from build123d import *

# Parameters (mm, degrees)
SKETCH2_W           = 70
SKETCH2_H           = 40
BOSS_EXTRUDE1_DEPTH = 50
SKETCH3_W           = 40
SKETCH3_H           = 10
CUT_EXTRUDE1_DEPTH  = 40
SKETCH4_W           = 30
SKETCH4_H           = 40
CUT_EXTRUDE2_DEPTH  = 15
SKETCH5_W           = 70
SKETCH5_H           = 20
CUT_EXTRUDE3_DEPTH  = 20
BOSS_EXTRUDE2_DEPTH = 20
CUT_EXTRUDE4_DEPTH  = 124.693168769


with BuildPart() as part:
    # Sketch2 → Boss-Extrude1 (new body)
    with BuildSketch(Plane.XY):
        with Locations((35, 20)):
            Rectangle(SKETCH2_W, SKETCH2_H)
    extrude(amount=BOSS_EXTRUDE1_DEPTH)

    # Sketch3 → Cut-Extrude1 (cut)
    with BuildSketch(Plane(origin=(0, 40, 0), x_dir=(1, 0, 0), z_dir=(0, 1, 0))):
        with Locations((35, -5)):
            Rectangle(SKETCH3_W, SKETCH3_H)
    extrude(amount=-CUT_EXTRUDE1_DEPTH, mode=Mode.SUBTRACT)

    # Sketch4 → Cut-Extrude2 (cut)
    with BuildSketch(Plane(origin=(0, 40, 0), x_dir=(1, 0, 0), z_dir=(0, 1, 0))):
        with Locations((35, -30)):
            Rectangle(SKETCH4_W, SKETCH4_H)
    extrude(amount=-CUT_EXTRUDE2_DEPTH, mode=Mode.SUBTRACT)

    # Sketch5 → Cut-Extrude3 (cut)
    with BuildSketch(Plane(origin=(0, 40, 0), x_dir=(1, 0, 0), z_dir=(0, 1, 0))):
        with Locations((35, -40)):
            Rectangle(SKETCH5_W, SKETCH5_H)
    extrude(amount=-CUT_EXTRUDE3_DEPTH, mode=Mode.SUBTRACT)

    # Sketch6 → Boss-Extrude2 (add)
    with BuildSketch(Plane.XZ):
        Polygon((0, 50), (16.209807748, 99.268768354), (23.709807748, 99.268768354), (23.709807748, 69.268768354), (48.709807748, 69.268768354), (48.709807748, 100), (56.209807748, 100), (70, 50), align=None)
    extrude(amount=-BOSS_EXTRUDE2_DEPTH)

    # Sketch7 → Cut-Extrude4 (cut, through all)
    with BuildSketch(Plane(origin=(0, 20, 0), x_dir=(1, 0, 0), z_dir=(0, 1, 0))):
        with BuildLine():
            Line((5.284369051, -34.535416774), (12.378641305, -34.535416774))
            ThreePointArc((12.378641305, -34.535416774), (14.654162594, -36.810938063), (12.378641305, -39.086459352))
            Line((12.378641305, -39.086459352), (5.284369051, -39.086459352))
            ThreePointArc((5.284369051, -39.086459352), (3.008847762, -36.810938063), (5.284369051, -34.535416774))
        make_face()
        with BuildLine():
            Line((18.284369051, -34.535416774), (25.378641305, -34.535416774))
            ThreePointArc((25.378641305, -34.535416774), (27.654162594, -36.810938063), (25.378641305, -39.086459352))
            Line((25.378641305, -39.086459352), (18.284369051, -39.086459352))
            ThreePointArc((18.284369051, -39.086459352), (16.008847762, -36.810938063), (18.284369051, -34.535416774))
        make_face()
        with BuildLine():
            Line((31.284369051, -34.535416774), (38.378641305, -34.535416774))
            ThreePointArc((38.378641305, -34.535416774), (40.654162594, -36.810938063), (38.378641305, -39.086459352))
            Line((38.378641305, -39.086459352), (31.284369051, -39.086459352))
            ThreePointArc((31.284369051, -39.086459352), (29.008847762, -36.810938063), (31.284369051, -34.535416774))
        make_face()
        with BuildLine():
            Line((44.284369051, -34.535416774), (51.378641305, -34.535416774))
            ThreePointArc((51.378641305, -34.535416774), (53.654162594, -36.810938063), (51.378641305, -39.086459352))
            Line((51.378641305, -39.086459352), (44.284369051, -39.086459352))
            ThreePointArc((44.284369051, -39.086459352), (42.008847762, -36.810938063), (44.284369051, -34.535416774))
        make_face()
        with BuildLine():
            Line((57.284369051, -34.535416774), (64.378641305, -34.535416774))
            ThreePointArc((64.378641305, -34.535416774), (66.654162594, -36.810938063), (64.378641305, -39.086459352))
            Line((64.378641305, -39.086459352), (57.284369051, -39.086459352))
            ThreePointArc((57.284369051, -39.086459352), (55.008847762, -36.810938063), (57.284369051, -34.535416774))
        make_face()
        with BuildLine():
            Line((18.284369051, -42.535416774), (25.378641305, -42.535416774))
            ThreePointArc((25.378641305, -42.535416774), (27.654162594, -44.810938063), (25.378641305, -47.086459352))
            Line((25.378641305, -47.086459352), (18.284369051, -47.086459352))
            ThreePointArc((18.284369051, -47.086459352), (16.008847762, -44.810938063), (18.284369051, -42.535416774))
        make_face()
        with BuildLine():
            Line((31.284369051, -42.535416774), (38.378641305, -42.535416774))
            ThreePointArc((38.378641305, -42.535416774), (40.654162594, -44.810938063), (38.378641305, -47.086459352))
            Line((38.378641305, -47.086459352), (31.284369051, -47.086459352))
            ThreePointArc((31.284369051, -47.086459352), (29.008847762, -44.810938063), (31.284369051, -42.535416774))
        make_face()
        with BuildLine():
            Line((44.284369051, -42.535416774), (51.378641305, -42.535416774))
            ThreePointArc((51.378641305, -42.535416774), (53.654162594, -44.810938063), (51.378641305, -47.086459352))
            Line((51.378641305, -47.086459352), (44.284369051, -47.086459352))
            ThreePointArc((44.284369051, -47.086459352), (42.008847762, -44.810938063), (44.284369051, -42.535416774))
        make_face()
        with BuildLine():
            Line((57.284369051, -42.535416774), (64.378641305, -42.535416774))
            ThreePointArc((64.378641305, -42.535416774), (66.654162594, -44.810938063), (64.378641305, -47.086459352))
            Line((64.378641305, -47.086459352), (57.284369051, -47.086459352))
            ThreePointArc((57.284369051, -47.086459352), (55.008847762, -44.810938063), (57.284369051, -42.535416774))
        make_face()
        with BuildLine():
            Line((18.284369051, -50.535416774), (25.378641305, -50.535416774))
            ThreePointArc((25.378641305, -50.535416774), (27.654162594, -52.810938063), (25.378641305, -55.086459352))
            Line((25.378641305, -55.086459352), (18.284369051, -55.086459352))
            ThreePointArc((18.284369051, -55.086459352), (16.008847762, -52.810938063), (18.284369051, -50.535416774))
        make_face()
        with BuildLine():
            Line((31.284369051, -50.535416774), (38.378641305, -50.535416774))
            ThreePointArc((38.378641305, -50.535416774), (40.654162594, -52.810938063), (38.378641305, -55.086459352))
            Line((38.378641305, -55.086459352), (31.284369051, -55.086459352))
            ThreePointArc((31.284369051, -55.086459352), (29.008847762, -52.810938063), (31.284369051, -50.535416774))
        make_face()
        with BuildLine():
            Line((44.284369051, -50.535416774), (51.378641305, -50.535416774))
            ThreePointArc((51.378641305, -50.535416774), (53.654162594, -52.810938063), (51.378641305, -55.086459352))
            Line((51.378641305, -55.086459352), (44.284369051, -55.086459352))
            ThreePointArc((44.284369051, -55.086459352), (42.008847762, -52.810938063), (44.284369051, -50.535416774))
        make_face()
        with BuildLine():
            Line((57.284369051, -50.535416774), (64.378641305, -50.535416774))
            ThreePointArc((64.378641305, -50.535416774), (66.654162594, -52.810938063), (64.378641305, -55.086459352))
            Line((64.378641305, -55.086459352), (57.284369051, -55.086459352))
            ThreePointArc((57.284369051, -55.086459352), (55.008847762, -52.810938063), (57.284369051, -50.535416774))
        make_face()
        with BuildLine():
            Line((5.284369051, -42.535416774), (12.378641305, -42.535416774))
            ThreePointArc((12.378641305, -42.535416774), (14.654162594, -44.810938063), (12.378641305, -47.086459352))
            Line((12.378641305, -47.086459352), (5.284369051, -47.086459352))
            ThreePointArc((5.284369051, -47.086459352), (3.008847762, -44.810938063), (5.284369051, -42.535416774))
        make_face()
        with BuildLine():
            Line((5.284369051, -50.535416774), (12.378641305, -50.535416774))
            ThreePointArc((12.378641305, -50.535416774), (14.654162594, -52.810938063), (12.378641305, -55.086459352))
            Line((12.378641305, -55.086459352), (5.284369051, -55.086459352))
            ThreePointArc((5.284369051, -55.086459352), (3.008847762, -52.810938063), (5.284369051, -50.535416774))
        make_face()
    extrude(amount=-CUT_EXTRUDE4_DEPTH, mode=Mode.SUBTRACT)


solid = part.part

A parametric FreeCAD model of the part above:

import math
import FreeCAD as App
import Part
import Sketcher
Q = App.Units.Quantity


def add_polygon(sketch, points):
    """Adds a closed chain of lines whose ends are joined by coincident constraints."""
    first, n = sketch.GeometryCount, len(points)
    for a, b in zip(points, points[1:] + points[:1]):
        sketch.addGeometry(Part.LineSegment(App.Vector(*a, 0), App.Vector(*b, 0)), False)
    for i in range(n):
        sketch.addConstraint(Sketcher.Constraint("Coincident", first + i, 2, first + (i + 1) % n, 1))

doc = App.newDocument("Part")
body = doc.addObject("PartDesign::Body", "Body")

# Sketch on XY plane
sketch1 = body.newObject("Sketcher::SketchObject", "Sketch")
sketch1.AttachmentSupport = (doc.getObject("XY_Plane"), [""])
sketch1.MapMode = "FlatFace"
add_polygon(sketch1, [(0, 40), (0, 0), (70, 0), (70, 40)])  # lines 0-3
sketch1.addConstraint([
    Sketcher.Constraint("Vertical", 0),
    Sketcher.Constraint("Horizontal", 1),
    Sketcher.Constraint("Vertical", 2),
    Sketcher.Constraint("Horizontal", 3),
    Sketcher.Constraint("Coincident", 0, 2, -1, 1),
    Sketcher.Constraint("DistanceX", 1, 1, 1, 2, Q("70 mm")),
    Sketcher.Constraint("DistanceY", 0, 2, 0, 1, Q("40 mm")),
])
pad1 = body.newObject("PartDesign::Pad", "Pad")
pad1.Profile = sketch1
pad1.Length = 50

# Sketch on XZ plane
sketch2 = body.newObject("Sketcher::SketchObject", "Sketch001")
sketch2.AttachmentSupport = (doc.getObject("XZ_Plane"), [""])
sketch2.MapMode = "FlatFace"
sketch2.AttachmentOffset = App.Placement(App.Vector(0, 0, -40), App.Rotation())
add_polygon(sketch2, [(15, 0), (15, 10), (55, 10), (55, 0)])  # lines 0-3
sketch2.addConstraint([
    Sketcher.Constraint("Vertical", 0),
    Sketcher.Constraint("Horizontal", 1),
    Sketcher.Constraint("Vertical", 2),
    Sketcher.Constraint("Horizontal", 3),
    Sketcher.Constraint("PointOnObject", 2, 2, -1),
    Sketcher.Constraint("DistanceX", 1, 1, 1, 2, Q("40 mm")),
    Sketcher.Constraint("DistanceY", 0, 1, 0, 2, Q("10 mm")),
    Sketcher.Constraint("DistanceX", -1, 1, 0, 2, Q("15 mm")),
])
pocket1 = body.newObject("PartDesign::Pocket", "Pocket")
pocket1.Profile = sketch2
pocket1.Length = 40
pocket1.Reversed = True

# Sketch on XZ plane
sketch3 = body.newObject("Sketcher::SketchObject", "Sketch002")
sketch3.AttachmentSupport = (doc.getObject("XZ_Plane"), [""])
sketch3.MapMode = "FlatFace"
sketch3.AttachmentOffset = App.Placement(App.Vector(0, 0, -40), App.Rotation())
add_polygon(sketch3, [(20, 10), (20, 50), (50, 50), (50, 10)])  # lines 0-3
sketch3.addConstraint([
    Sketcher.Constraint("Vertical", 0),
    Sketcher.Constraint("Horizontal", 1),
    Sketcher.Constraint("Vertical", 2),
    Sketcher.Constraint("Horizontal", 3),
    Sketcher.Constraint("DistanceX", 1, 1, 1, 2, Q("30 mm")),
    Sketcher.Constraint("DistanceY", 0, 1, 0, 2, Q("40 mm")),
    Sketcher.Constraint("DistanceX", -1, 1, 0, 2, Q("20 mm")),
    Sketcher.Constraint("DistanceY", -1, 1, 0, 2, Q("50 mm")),
])
pocket2 = body.newObject("PartDesign::Pocket", "Pocket001")
pocket2.Profile = sketch3
pocket2.Length = 15
pocket2.Reversed = True

# Sketch on XZ plane
sketch4 = body.newObject("Sketcher::SketchObject", "Sketch003")
sketch4.AttachmentSupport = (doc.getObject("XZ_Plane"), [""])
sketch4.MapMode = "FlatFace"
sketch4.AttachmentOffset = App.Placement(App.Vector(0, 0, -40), App.Rotation())
add_polygon(sketch4, [(0, 30), (0, 50), (70, 50), (70, 30)])  # lines 0-3
sketch4.addConstraint([
    Sketcher.Constraint("Vertical", 0),
    Sketcher.Constraint("Horizontal", 1),
    Sketcher.Constraint("Vertical", 2),
    Sketcher.Constraint("Horizontal", 3),
    Sketcher.Constraint("PointOnObject", 0, 2, -2),
    Sketcher.Constraint("DistanceX", 1, 1, 1, 2, Q("70 mm")),
    Sketcher.Constraint("DistanceY", 0, 1, 0, 2, Q("20 mm")),
    Sketcher.Constraint("DistanceY", -1, 1, 0, 2, Q("50 mm")),
])
pocket3 = body.newObject("PartDesign::Pocket", "Pocket002")
pocket3.Profile = sketch4
pocket3.Length = 20
pocket3.Reversed = True

# Sketch on XZ plane
sketch5 = body.newObject("Sketcher::SketchObject", "Sketch004")
sketch5.AttachmentSupport = (doc.getObject("XZ_Plane"), [""])
sketch5.MapMode = "FlatFace"
add_polygon(sketch5, [(16.209808, 99.268768), (0, 50), (70, 50), (56.209808, 100), (48.709808, 100), (48.709808, 69.268768), (23.709808, 69.268768), (23.709808, 99.268768)])  # lines 0-7
sketch5.addConstraint([
    Sketcher.Constraint("Horizontal", 1),
    Sketcher.Constraint("Horizontal", 3),
    Sketcher.Constraint("Vertical", 4),
    Sketcher.Constraint("Horizontal", 5),
    Sketcher.Constraint("Vertical", 6),
    Sketcher.Constraint("Horizontal", 7),
    Sketcher.Constraint("PointOnObject", 0, 2, -2),
    Sketcher.Constraint("Equal", 3, 7),
    Sketcher.Constraint("Equal", 0, 2),
    Sketcher.Constraint("DistanceX", 1, 1, 1, 2, Q("70 mm")),
    Sketcher.Constraint("DistanceX", 5, 2, 5, 1, Q("25 mm")),
    Sketcher.Constraint("DistanceY", 6, 1, 6, 2, Q("30 mm")),
    Sketcher.Constraint("DistanceX", 3, 2, 3, 1, Q("7.5 mm")),
    Sketcher.Constraint("DistanceY", -1, 1, 0, 2, Q("50 mm")),
    Sketcher.Constraint("DistanceY", -1, 1, 2, 2, Q("100 mm")),
    Sketcher.Constraint("DistanceY", 4, 2, 4, 1, Q("30.731232 mm")),
])
pad2 = body.newObject("PartDesign::Pad", "Pad001")
pad2.Profile = sketch5
pad2.Length = 20
pad2.Reversed = True

# Sketch on XZ plane
sketch6 = body.newObject("Sketcher::SketchObject", "Sketch005")
sketch6.AttachmentSupport = (doc.getObject("XZ_Plane"), [""])
sketch6.MapMode = "FlatFace"
sketch6.AttachmentOffset = App.Placement(App.Vector(0, 0, -20), App.Rotation())
sketch6.addGeometry([
    Part.LineSegment(App.Vector(12.378641, 34.535417, 0), App.Vector(5.284369, 34.535417, 0)),  # 0
    Part.ArcOfCircle(Part.Circle(App.Vector(5.284369, 36.810938, 0), App.Vector(0, 0, 1), 2.275521), math.radians(90), math.radians(270)),  # 1
    Part.LineSegment(App.Vector(5.284369, 39.086459, 0), App.Vector(12.378641, 39.086459, 0)),  # 2
    Part.ArcOfCircle(Part.Circle(App.Vector(12.378641, 36.810938, 0), App.Vector(0, 0, 1), 2.275521), math.radians(-90), math.radians(90)),  # 3
    Part.LineSegment(App.Vector(25.378641, 34.535417, 0), App.Vector(18.284369, 34.535417, 0)),  # 4
    Part.ArcOfCircle(Part.Circle(App.Vector(18.284369, 36.810938, 0), App.Vector(0, 0, 1), 2.275521), math.radians(90), math.radians(270)),  # 5
    Part.LineSegment(App.Vector(18.284369, 39.086459, 0), App.Vector(25.378641, 39.086459, 0)),  # 6
    Part.ArcOfCircle(Part.Circle(App.Vector(25.378641, 36.810938, 0), App.Vector(0, 0, 1), 2.275521), math.radians(-90), math.radians(90)),  # 7
    Part.LineSegment(App.Vector(38.378641, 34.535417, 0), App.Vector(31.284369, 34.535417, 0)),  # 8
    Part.ArcOfCircle(Part.Circle(App.Vector(31.284369, 36.810938, 0), App.Vector(0, 0, 1), 2.275521), math.radians(90), math.radians(270)),  # 9
    Part.LineSegment(App.Vector(31.284369, 39.086459, 0), App.Vector(38.378641, 39.086459, 0)),  # 10
    Part.ArcOfCircle(Part.Circle(App.Vector(38.378641, 36.810938, 0), App.Vector(0, 0, 1), 2.275521), math.radians(-90), math.radians(90)),  # 11
    Part.LineSegment(App.Vector(51.378641, 34.535417, 0), App.Vector(44.284369, 34.535417, 0)),  # 12
    Part.ArcOfCircle(Part.Circle(App.Vector(44.284369, 36.810938, 0), App.Vector(0, 0, 1), 2.275521), math.radians(90), math.radians(270)),  # 13
    Part.LineSegment(App.Vector(44.284369, 39.086459, 0), App.Vector(51.378641, 39.086459, 0)),  # 14
    Part.ArcOfCircle(Part.Circle(App.Vector(51.378641, 36.810938, 0), App.Vector(0, 0, 1), 2.275521), math.radians(-90), math.radians(90)),  # 15
    Part.LineSegment(App.Vector(64.378641, 34.535417, 0), App.Vector(57.284369, 34.535417, 0)),  # 16
    Part.ArcOfCircle(Part.Circle(App.Vector(57.284369, 36.810938, 0), App.Vector(0, 0, 1), 2.275521), math.radians(90), math.radians(270)),  # 17
    Part.LineSegment(App.Vector(57.284369, 39.086459, 0), App.Vector(64.378641, 39.086459, 0)),  # 18
    Part.ArcOfCircle(Part.Circle(App.Vector(64.378641, 36.810938, 0), App.Vector(0, 0, 1), 2.275521), math.radians(-90), math.radians(90)),  # 19
    Part.LineSegment(App.Vector(25.378641, 42.535417, 0), App.Vector(18.284369, 42.535417, 0)),  # 20
    Part.ArcOfCircle(Part.Circle(App.Vector(18.284369, 44.810938, 0), App.Vector(0, 0, 1), 2.275521), math.radians(90), math.radians(270)),  # 21
    Part.LineSegment(App.Vector(18.284369, 47.086459, 0), App.Vector(25.378641, 47.086459, 0)),  # 22
    Part.ArcOfCircle(Part.Circle(App.Vector(25.378641, 44.810938, 0), App.Vector(0, 0, 1), 2.275521), math.radians(-90), math.radians(90)),  # 23
    Part.LineSegment(App.Vector(38.378641, 42.535417, 0), App.Vector(31.284369, 42.535417, 0)),  # 24
    Part.ArcOfCircle(Part.Circle(App.Vector(31.284369, 44.810938, 0), App.Vector(0, 0, 1), 2.275521), math.radians(90), math.radians(270)),  # 25
    Part.LineSegment(App.Vector(31.284369, 47.086459, 0), App.Vector(38.378641, 47.086459, 0)),  # 26
    Part.ArcOfCircle(Part.Circle(App.Vector(38.378641, 44.810938, 0), App.Vector(0, 0, 1), 2.275521), math.radians(-90), math.radians(90)),  # 27
    Part.LineSegment(App.Vector(51.378641, 42.535417, 0), App.Vector(44.284369, 42.535417, 0)),  # 28
    Part.ArcOfCircle(Part.Circle(App.Vector(44.284369, 44.810938, 0), App.Vector(0, 0, 1), 2.275521), math.radians(90), math.radians(270)),  # 29
    Part.LineSegment(App.Vector(44.284369, 47.086459, 0), App.Vector(51.378641, 47.086459, 0)),  # 30
    Part.ArcOfCircle(Part.Circle(App.Vector(51.378641, 44.810938, 0), App.Vector(0, 0, 1), 2.275521), math.radians(-90), math.radians(90)),  # 31
    Part.LineSegment(App.Vector(64.378641, 42.535417, 0), App.Vector(57.284369, 42.535417, 0)),  # 32
    Part.ArcOfCircle(Part.Circle(App.Vector(57.284369, 44.810938, 0), App.Vector(0, 0, 1), 2.275521), math.radians(90), math.radians(270)),  # 33
    Part.LineSegment(App.Vector(57.284369, 47.086459, 0), App.Vector(64.378641, 47.086459, 0)),  # 34
    Part.ArcOfCircle(Part.Circle(App.Vector(64.378641, 44.810938, 0), App.Vector(0, 0, 1), 2.275521), math.radians(-90), math.radians(90)),  # 35
    Part.LineSegment(App.Vector(25.378641, 50.535417, 0), App.Vector(18.284369, 50.535417, 0)),  # 36
    Part.ArcOfCircle(Part.Circle(App.Vector(18.284369, 52.810938, 0), App.Vector(0, 0, 1), 2.275521), math.radians(90), math.radians(270)),  # 37
    Part.LineSegment(App.Vector(18.284369, 55.086459, 0), App.Vector(25.378641, 55.086459, 0)),  # 38
    Part.ArcOfCircle(Part.Circle(App.Vector(25.378641, 52.810938, 0), App.Vector(0, 0, 1), 2.275521), math.radians(-90), math.radians(90)),  # 39
    Part.LineSegment(App.Vector(38.378641, 50.535417, 0), App.Vector(31.284369, 50.535417, 0)),  # 40
    Part.ArcOfCircle(Part.Circle(App.Vector(31.284369, 52.810938, 0), App.Vector(0, 0, 1), 2.275521), math.radians(90), math.radians(270)),  # 41
    Part.LineSegment(App.Vector(31.284369, 55.086459, 0), App.Vector(38.378641, 55.086459, 0)),  # 42
    Part.ArcOfCircle(Part.Circle(App.Vector(38.378641, 52.810938, 0), App.Vector(0, 0, 1), 2.275521), math.radians(-90), math.radians(90)),  # 43
    Part.LineSegment(App.Vector(51.378641, 50.535417, 0), App.Vector(44.284369, 50.535417, 0)),  # 44
    Part.ArcOfCircle(Part.Circle(App.Vector(44.284369, 52.810938, 0), App.Vector(0, 0, 1), 2.275521), math.radians(90), math.radians(270)),  # 45
    Part.LineSegment(App.Vector(44.284369, 55.086459, 0), App.Vector(51.378641, 55.086459, 0)),  # 46
    Part.ArcOfCircle(Part.Circle(App.Vector(51.378641, 52.810938, 0), App.Vector(0, 0, 1), 2.275521), math.radians(-90), math.radians(90)),  # 47
    Part.LineSegment(App.Vector(64.378641, 50.535417, 0), App.Vector(57.284369, 50.535417, 0)),  # 48
    Part.ArcOfCircle(Part.Circle(App.Vector(57.284369, 52.810938, 0), App.Vector(0, 0, 1), 2.275521), math.radians(90), math.radians(270)),  # 49
    Part.LineSegment(App.Vector(57.284369, 55.086459, 0), App.Vector(64.378641, 55.086459, 0)),  # 50
    Part.ArcOfCircle(Part.Circle(App.Vector(64.378641, 52.810938, 0), App.Vector(0, 0, 1), 2.275521), math.radians(-90), math.radians(90)),  # 51
    Part.LineSegment(App.Vector(12.378641, 42.535417, 0), App.Vector(5.284369, 42.535417, 0)),  # 52
    Part.ArcOfCircle(Part.Circle(App.Vector(5.284369, 44.810938, 0), App.Vector(0, 0, 1), 2.275521), math.radians(90), math.radians(270)),  # 53
    Part.LineSegment(App.Vector(5.284369, 47.086459, 0), App.Vector(12.378641, 47.086459, 0)),  # 54
    Part.ArcOfCircle(Part.Circle(App.Vector(12.378641, 44.810938, 0), App.Vector(0, 0, 1), 2.275521), math.radians(-90), math.radians(90)),  # 55
    Part.LineSegment(App.Vector(12.378641, 50.535417, 0), App.Vector(5.284369, 50.535417, 0)),  # 56
    Part.ArcOfCircle(Part.Circle(App.Vector(5.284369, 52.810938, 0), App.Vector(0, 0, 1), 2.275521), math.radians(90), math.radians(270)),  # 57
    Part.LineSegment(App.Vector(5.284369, 55.086459, 0), App.Vector(12.378641, 55.086459, 0)),  # 58
    Part.ArcOfCircle(Part.Circle(App.Vector(12.378641, 52.810938, 0), App.Vector(0, 0, 1), 2.275521), math.radians(-90), math.radians(90)),  # 59
], False)
sketch6.addConstraint([
    Sketcher.Constraint("Tangent", 0, 2, 1, 2),
    Sketcher.Constraint("Tangent", 1, 1, 2, 1),
    Sketcher.Constraint("Tangent", 2, 2, 3, 2),
    Sketcher.Constraint("Tangent", 3, 1, 0, 1),
    Sketcher.Constraint("Tangent", 4, 2, 5, 2),
    Sketcher.Constraint("Tangent", 5, 1, 6, 1),
    Sketcher.Constraint("Tangent", 6, 2, 7, 2),
    Sketcher.Constraint("Tangent", 7, 1, 4, 1),
    Sketcher.Constraint("Tangent", 8, 2, 9, 2),
    Sketcher.Constraint("Tangent", 9, 1, 10, 1),
    Sketcher.Constraint("Tangent", 10, 2, 11, 2),
    Sketcher.Constraint("Tangent", 11, 1, 8, 1),
    Sketcher.Constraint("Tangent", 12, 2, 13, 2),
    Sketcher.Constraint("Tangent", 13, 1, 14, 1),
    Sketcher.Constraint("Tangent", 14, 2, 15, 2),
    Sketcher.Constraint("Tangent", 15, 1, 12, 1),
    Sketcher.Constraint("Tangent", 16, 2, 17, 2),
    Sketcher.Constraint("Tangent", 17, 1, 18, 1),
    Sketcher.Constraint("Tangent", 18, 2, 19, 2),
    Sketcher.Constraint("Tangent", 19, 1, 16, 1),
    Sketcher.Constraint("Tangent", 20, 2, 21, 2),
    Sketcher.Constraint("Tangent", 21, 1, 22, 1),
    Sketcher.Constraint("Tangent", 22, 2, 23, 2),
    Sketcher.Constraint("Tangent", 23, 1, 20, 1),
    Sketcher.Constraint("Tangent", 24, 2, 25, 2),
    Sketcher.Constraint("Tangent", 25, 1, 26, 1),
    Sketcher.Constraint("Tangent", 26, 2, 27, 2),
    Sketcher.Constraint("Tangent", 27, 1, 24, 1),
    Sketcher.Constraint("Tangent", 28, 2, 29, 2),
    Sketcher.Constraint("Tangent", 29, 1, 30, 1),
    Sketcher.Constraint("Tangent", 30, 2, 31, 2),
    Sketcher.Constraint("Tangent", 31, 1, 28, 1),
    Sketcher.Constraint("Tangent", 32, 2, 33, 2),
    Sketcher.Constraint("Tangent", 33, 1, 34, 1),
    Sketcher.Constraint("Tangent", 34, 2, 35, 2),
    Sketcher.Constraint("Tangent", 35, 1, 32, 1),
    Sketcher.Constraint("Tangent", 36, 2, 37, 2),
    Sketcher.Constraint("Tangent", 37, 1, 38, 1),
    Sketcher.Constraint("Tangent", 38, 2, 39, 2),
    Sketcher.Constraint("Tangent", 39, 1, 36, 1),
    Sketcher.Constraint("Tangent", 40, 2, 41, 2),
    Sketcher.Constraint("Tangent", 41, 1, 42, 1),
    Sketcher.Constraint("Tangent", 42, 2, 43, 2),
    Sketcher.Constraint("Tangent", 43, 1, 40, 1),
    Sketcher.Constraint("Tangent", 44, 2, 45, 2),
    Sketcher.Constraint("Tangent", 45, 1, 46, 1),
    Sketcher.Constraint("Tangent", 46, 2, 47, 2),
    Sketcher.Constraint("Tangent", 47, 1, 44, 1),
    Sketcher.Constraint("Tangent", 48, 2, 49, 2),
    Sketcher.Constraint("Tangent", 49, 1, 50, 1),
    Sketcher.Constraint("Tangent", 50, 2, 51, 2),
    Sketcher.Constraint("Tangent", 51, 1, 48, 1),
    Sketcher.Constraint("Tangent", 52, 2, 53, 2),
    Sketcher.Constraint("Tangent", 53, 1, 54, 1),
    Sketcher.Constraint("Tangent", 54, 2, 55, 2),
    Sketcher.Constraint("Tangent", 55, 1, 52, 1),
    Sketcher.Constraint("Tangent", 56, 2, 57, 2),
    Sketcher.Constraint("Tangent", 57, 1, 58, 1),
    Sketcher.Constraint("Tangent", 58, 2, 59, 2),
    Sketcher.Constraint("Tangent", 59, 1, 56, 1),
    Sketcher.Constraint("Horizontal", 0),
    Sketcher.Constraint("Horizontal", 2),
    Sketcher.Constraint("Horizontal", 4),
    Sketcher.Constraint("Horizontal", 6),
    Sketcher.Constraint("Horizontal", 8),
    Sketcher.Constraint("Horizontal", 10),
    Sketcher.Constraint("Horizontal", 12),
    Sketcher.Constraint("Horizontal", 14),
    Sketcher.Constraint("Horizontal", 16),
    Sketcher.Constraint("Horizontal", 18),
    Sketcher.Constraint("Horizontal", 20),
    Sketcher.Constraint("Horizontal", 22),
    Sketcher.Constraint("Horizontal", 24),
    Sketcher.Constraint("Horizontal", 26),
    Sketcher.Constraint("Horizontal", 28),
    Sketcher.Constraint("Horizontal", 30),
    Sketcher.Constraint("Horizontal", 32),
    Sketcher.Constraint("Horizontal", 34),
    Sketcher.Constraint("Horizontal", 36),
    Sketcher.Constraint("Horizontal", 38),
    Sketcher.Constraint("Horizontal", 40),
    Sketcher.Constraint("Horizontal", 42),
    Sketcher.Constraint("Horizontal", 44),
    Sketcher.Constraint("Horizontal", 46),
    Sketcher.Constraint("Horizontal", 48),
    Sketcher.Constraint("Horizontal", 50),
    Sketcher.Constraint("Horizontal", 52),
    Sketcher.Constraint("Horizontal", 54),
    Sketcher.Constraint("Horizontal", 56),
    Sketcher.Constraint("Horizontal", 58),
    Sketcher.Constraint("Equal", 3, 5),
    Sketcher.Constraint("Equal", 7, 9),
    Sketcher.Constraint("Equal", 11, 13),
    Sketcher.Constraint("Equal", 15, 17),
    Sketcher.Constraint("Equal", 19, 21),
    Sketcher.Constraint("Equal", 23, 25),
    Sketcher.Constraint("Equal", 27, 29),
    Sketcher.Constraint("Equal", 31, 33),
    Sketcher.Constraint("Equal", 35, 37),
    Sketcher.Constraint("Equal", 39, 41),
    Sketcher.Constraint("Equal", 43, 45),
    Sketcher.Constraint("Equal", 47, 49),
    Sketcher.Constraint("Equal", 51, 53),
    Sketcher.Constraint("Equal", 55, 57),
    Sketcher.Constraint("Horizontal", 3, 3, 5, 3),
    Sketcher.Constraint("Horizontal", 7, 3, 9, 3),
    Sketcher.Constraint("Horizontal", 11, 3, 13, 3),
    Sketcher.Constraint("Horizontal", 15, 3, 17, 3),
    Sketcher.Constraint("Horizontal", 23, 3, 25, 3),
    Sketcher.Constraint("Horizontal", 27, 3, 29, 3),
    Sketcher.Constraint("Horizontal", 31, 3, 33, 3),
    Sketcher.Constraint("Horizontal", 39, 3, 41, 3),
    Sketcher.Constraint("Horizontal", 43, 3, 45, 3),
    Sketcher.Constraint("Horizontal", 47, 3, 49, 3),
    Sketcher.Constraint("Horizontal", 35, 3, 53, 3),
    Sketcher.Constraint("Horizontal", 51, 3, 57, 3),
    Sketcher.Constraint("Vertical", 5, 3, 21, 3),
    Sketcher.Constraint("Vertical", 7, 3, 23, 3),
    Sketcher.Constraint("Vertical", 9, 3, 25, 3),
    Sketcher.Constraint("Vertical", 11, 3, 27, 3),
    Sketcher.Constraint("Vertical", 13, 3, 29, 3),
    Sketcher.Constraint("Vertical", 15, 3, 31, 3),
    Sketcher.Constraint("Vertical", 17, 3, 33, 3),
    Sketcher.Constraint("Vertical", 19, 3, 35, 3),
    Sketcher.Constraint("Vertical", 21, 3, 37, 3),
    Sketcher.Constraint("Vertical", 23, 3, 39, 3),
    Sketcher.Constraint("Vertical", 25, 3, 41, 3),
    Sketcher.Constraint("Vertical", 27, 3, 43, 3),
    Sketcher.Constraint("Vertical", 29, 3, 45, 3),
    Sketcher.Constraint("Vertical", 31, 3, 47, 3),
    Sketcher.Constraint("Vertical", 33, 3, 49, 3),
    Sketcher.Constraint("Vertical", 35, 3, 51, 3),
    Sketcher.Constraint("Vertical", 1, 3, 53, 3),
    Sketcher.Constraint("Vertical", 3, 3, 55, 3),
    Sketcher.Constraint("Vertical", 53, 3, 57, 3),
    Sketcher.Constraint("Vertical", 55, 3, 59, 3),
    Sketcher.Constraint("Equal", 2, 4),
    Sketcher.Constraint("Equal", 6, 8),
    Sketcher.Constraint("Equal", 10, 12),
    Sketcher.Constraint("Equal", 14, 16),
    Sketcher.Constraint("Radius", 1, Q("2.275521 mm")),
    Sketcher.Constraint("DistanceX", 0, 2, 0, 1, Q("7.094272 mm")),
    Sketcher.Constraint("DistanceX", -1, 1, 1, 3, Q("5.284369 mm")),
    Sketcher.Constraint("DistanceY", -1, 1, 1, 3, Q("36.810938 mm")),
    Sketcher.Constraint("DistanceX", -1, 1, 5, 3, Q("18.284369 mm")),
    Sketcher.Constraint("DistanceX", -1, 1, 9, 3, Q("31.284369 mm")),
    Sketcher.Constraint("DistanceX", -1, 1, 13, 3, Q("44.284369 mm")),
    Sketcher.Constraint("DistanceX", -1, 1, 17, 3, Q("57.284369 mm")),
    Sketcher.Constraint("DistanceY", -1, 1, 21, 3, Q("44.810938 mm")),
    Sketcher.Constraint("DistanceY", -1, 1, 37, 3, Q("52.810938 mm")),
])
pocket4 = body.newObject("PartDesign::Pocket", "Pocket003")
pocket4.Profile = sketch6
pocket4.Type = "ThroughAll"
pocket4.Reversed = True

doc.recompute()
